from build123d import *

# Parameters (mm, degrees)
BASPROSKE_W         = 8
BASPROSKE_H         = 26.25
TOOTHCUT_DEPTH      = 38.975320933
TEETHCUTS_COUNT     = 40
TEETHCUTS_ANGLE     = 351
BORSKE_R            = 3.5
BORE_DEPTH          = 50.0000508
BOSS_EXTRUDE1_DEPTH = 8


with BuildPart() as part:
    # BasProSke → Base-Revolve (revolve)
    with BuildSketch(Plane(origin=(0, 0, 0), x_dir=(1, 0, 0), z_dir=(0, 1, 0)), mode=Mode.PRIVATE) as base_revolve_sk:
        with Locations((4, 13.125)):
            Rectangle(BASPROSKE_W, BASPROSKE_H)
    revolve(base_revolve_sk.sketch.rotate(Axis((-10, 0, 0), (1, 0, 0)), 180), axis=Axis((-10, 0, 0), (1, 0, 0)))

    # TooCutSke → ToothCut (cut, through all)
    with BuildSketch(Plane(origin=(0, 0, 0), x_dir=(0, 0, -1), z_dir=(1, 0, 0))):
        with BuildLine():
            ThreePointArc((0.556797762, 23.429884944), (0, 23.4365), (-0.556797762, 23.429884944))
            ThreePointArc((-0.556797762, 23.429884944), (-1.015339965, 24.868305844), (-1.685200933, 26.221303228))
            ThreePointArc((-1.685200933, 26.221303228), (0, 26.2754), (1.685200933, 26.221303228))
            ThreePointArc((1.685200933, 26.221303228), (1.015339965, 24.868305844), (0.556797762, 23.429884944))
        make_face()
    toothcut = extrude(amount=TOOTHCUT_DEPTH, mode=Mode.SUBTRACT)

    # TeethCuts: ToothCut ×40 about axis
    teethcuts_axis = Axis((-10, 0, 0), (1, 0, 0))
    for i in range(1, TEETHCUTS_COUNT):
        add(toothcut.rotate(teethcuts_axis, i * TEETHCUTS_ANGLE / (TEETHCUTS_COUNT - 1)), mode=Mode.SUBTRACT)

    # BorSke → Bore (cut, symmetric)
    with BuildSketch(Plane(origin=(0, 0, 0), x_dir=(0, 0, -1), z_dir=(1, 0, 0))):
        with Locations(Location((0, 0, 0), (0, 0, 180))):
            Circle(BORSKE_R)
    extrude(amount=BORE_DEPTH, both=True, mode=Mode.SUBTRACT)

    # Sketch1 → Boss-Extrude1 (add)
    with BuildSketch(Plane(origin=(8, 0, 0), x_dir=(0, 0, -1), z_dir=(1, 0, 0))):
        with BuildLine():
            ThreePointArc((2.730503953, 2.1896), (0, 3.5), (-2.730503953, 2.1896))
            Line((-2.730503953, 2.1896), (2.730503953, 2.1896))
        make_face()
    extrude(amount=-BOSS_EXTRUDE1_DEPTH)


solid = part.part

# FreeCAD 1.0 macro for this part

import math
import FreeCAD as App
import Part
import Sketcher

doc = App.newDocument("Part")
params = doc.addObject("Spreadsheet::Sheet", "Params")
for row, (alias, value) in enumerate([
    ("sketch1_width", "8 mm"),
    ("sketch1_height", "26.25 mm"),
    ("revolution_angle", "360 deg"),
    ("sketch2_radius", "10 mm"),
    ("sketch3_diameter", "7 mm"),
    ("pocket2_length", "100.000102 mm"),
    ("sketch4_radius", "3.5 mm"),
    ("pad1_length", "8 mm"),
], start=1):
    params.set(f"A{row}", alias)
    params.set(f"B{row}", "=" + value)
    params.setAlias(f"B{row}", alias)

body = doc.addObject("PartDesign::Body", "Body")

# Sketch on XZ plane
sketch1 = body.newObject("Sketcher::SketchObject", "Sketch")
sketch1.AttachmentSupport = (doc.getObject("XZ_Plane"), [""])
sketch1.MapMode = "FlatFace"
sketch1.addGeometry(Part.LineSegment(App.Vector(0, -26, 0), App.Vector(0, 0, 0)), False)
sketch1.addGeometry(Part.LineSegment(App.Vector(0, 0, 0), App.Vector(8, 0, 0)), False)
sketch1.addGeometry(Part.LineSegment(App.Vector(8, 0, 0), App.Vector(8, -26, 0)), False)
sketch1.addGeometry(Part.LineSegment(App.Vector(8, -26, 0), App.Vector(0, -26, 0)), False)
sketch1.addConstraint(Sketcher.Constraint("Coincident", 0, 2, 1, 1))
sketch1.addConstraint(Sketcher.Constraint("Coincident", 1, 2, 2, 1))
sketch1.addConstraint(Sketcher.Constraint("Coincident", 2, 2, 3, 1))
sketch1.addConstraint(Sketcher.Constraint("Coincident", 3, 2, 0, 1))
sketch1.addConstraint(Sketcher.Constraint("Vertical", 0))
sketch1.addConstraint(Sketcher.Constraint("Horizontal", 1))
sketch1.addConstraint(Sketcher.Constraint("Vertical", 2))
sketch1.addConstraint(Sketcher.Constraint("Horizontal", 3))
sketch1.addConstraint(Sketcher.Constraint("Coincident", 0, 2, -1, 1))
sketch1.addConstraint(Sketcher.Constraint("DistanceX", 1, 1, 1, 2, 8.0))
sketch1.addConstraint(Sketcher.Constraint("DistanceY", 0, 1, 0, 2, 26.25))
sketch1.setExpression("Constraints[9]", "Params.sketch1_width")
sketch1.setExpression("Constraints[10]", "Params.sketch1_height")
revolution = body.newObject("PartDesign::Revolution", "Revolution")
revolution.Profile = sketch1
revolution.ReferenceAxis = (sketch1, ["H_Axis"])
revolution.setExpression("Angle", "Params.revolution_angle")

# Sketch on YZ plane
sketch2 = body.newObject("Sketcher::SketchObject", "Sketch001")
sketch2.AttachmentSupport = (doc.getObject("YZ_Plane"), [""])
sketch2.MapMode = "FlatFace"
sketch2.addGeometry(Part.ArcOfCircle(Part.Circle(App.Vector(0, 0, 0), App.Vector(0, 0, 1), 23.4), math.radians(-1.36), math.radians(1.36)), False)
sketch2.addGeometry(Part.ArcOfCircle(Part.Circle(App.Vector(21.1, -10.3, 0), App.Vector(0, 0, 1), 10), math.radians(59.33), math.radians(76.65)), False)
sketch2.addGeometry(Part.ArcOfCircle(Part.Circle(App.Vector(0, 0, 0), App.Vector(0, 0, 1), 26.3), math.radians(-3.68), math.radians(3.68)), False)
sketch2.addGeometry(Part.ArcOfCircle(Part.Circle(App.Vector(21.1, 10.3, 0), App.Vector(0, 0, 1), 10), math.radians(-76.65), math.radians(-59.33)), False)
sketch2.addConstraint(Sketcher.Constraint("Coincident", 0, 1, 1, 2))
sketch2.addConstraint(Sketcher.Constraint("Coincident", 1, 1, 2, 1))
sketch2.addConstraint(Sketcher.Constraint("Coincident", 2, 2, 3, 2))
sketch2.addConstraint(Sketcher.Constraint("Coincident", 3, 1, 0, 2))
sketch2.addConstraint(Sketcher.Constraint("Coincident", 0, 3, -1, 1))
sketch2.addConstraint(Sketcher.Constraint("Coincident", 2, 3, -1, 1))
sketch2.addConstraint(Sketcher.Constraint("Equal", 1, 3))
sketch2.addConstraint(Sketcher.Constraint("Symmetric", 1, 3, 3, 3, -1))
sketch2.addConstraint(Sketcher.Constraint("Radius", 1, 10.0))
sketch2.addConstraint(Sketcher.Constraint("Radius", 0, 23.436499))
sketch2.addConstraint(Sketcher.Constraint("Radius", 2, 26.2754))
sketch2.addConstraint(Sketcher.Constraint("DistanceY", 0, 1, 2, 2, 2.241999))
sketch2.addConstraint(Sketcher.Constraint("DistanceY", 1, 1, -1, 1, 1.685201))
sketch2.setExpression("Constraints[8]", "Params.sketch2_radius")
pocket1 = body.newObject("PartDesign::Pocket", "Pocket")
pocket1.Profile = sketch2
pocket1.Type = "ThroughAll"
pocket1.Reversed = True
doc.recompute()

polarpattern = body.newObject("PartDesign::PolarPattern", "PolarPattern")
polarpattern.Originals = [pocket1]
polarpattern.Axis = (doc.getObject("X_Axis"), [""])
polarpattern.Angle = 360
polarpattern.Occurrences = 40
body.Tip = polarpattern

# Sketch on YZ plane
sketch3 = body.newObject("Sketcher::SketchObject", "Sketch002")
sketch3.AttachmentSupport = (doc.getObject("YZ_Plane"), [""])
sketch3.MapMode = "FlatFace"
sketch3.addGeometry(Part.Circle(App.Vector(0, 0, 0), App.Vector(0, 0, 1), 3.5), False)
sketch3.addConstraint(Sketcher.Constraint("Coincident", 0, 3, -1, 1))
sketch3.addConstraint(Sketcher.Constraint("Diameter", 0, 7.0))
sketch3.setExpression("Constraints[1]", "Params.sketch3_diameter")
pocket2 = body.newObject("PartDesign::Pocket", "Pocket001")
pocket2.Profile = sketch3
pocket2.setExpression("Length", "Params.pocket2_length")
pocket2.Midplane = True

# Sketch on YZ plane
sketch4 = body.newObject("Sketcher::SketchObject", "Sketch003")
sketch4.AttachmentSupport = (doc.getObject("YZ_Plane"), [""])
sketch4.MapMode = "FlatFace"
sketch4.AttachmentOffset = App.Placement(App.Vector(0, 0, 8), App.Rotation())
sketch4.addGeometry(Part.ArcOfCircle(Part.Circle(App.Vector(0, 0, 0), App.Vector(0, 0, 1), 3.5), math.radians(-51), math.radians(51)), False)
sketch4.addGeometry(Part.LineSegment(App.Vector(2.2, 2.7, 0), App.Vector(2.2, -2.7, 0)), False)
sketch4.addConstraint(Sketcher.Constraint("Coincident", 0, 1, 1, 2))
sketch4.addConstraint(Sketcher.Constraint("Coincident", 1, 1, 0, 2))
sketch4.addConstraint(Sketcher.Constraint("Vertical", 1))
sketch4.addConstraint(Sketcher.Constraint("Coincident", 0, 3, -1, 1))
sketch4.addConstraint(Sketcher.Constraint("Radius", 0, 3.5))
sketch4.addConstraint(Sketcher.Constraint("DistanceX", -1, 1, 0, 1, 2.1896))
sketch4.setExpression("Constraints[4]", "Params.sketch4_radius")
pad1 = body.newObject("PartDesign::Pad", "Pad")
pad1.Profile = sketch4
pad1.setExpression("Length", "Params.pad1_length")
pad1.Reversed = True

doc.recompute()
